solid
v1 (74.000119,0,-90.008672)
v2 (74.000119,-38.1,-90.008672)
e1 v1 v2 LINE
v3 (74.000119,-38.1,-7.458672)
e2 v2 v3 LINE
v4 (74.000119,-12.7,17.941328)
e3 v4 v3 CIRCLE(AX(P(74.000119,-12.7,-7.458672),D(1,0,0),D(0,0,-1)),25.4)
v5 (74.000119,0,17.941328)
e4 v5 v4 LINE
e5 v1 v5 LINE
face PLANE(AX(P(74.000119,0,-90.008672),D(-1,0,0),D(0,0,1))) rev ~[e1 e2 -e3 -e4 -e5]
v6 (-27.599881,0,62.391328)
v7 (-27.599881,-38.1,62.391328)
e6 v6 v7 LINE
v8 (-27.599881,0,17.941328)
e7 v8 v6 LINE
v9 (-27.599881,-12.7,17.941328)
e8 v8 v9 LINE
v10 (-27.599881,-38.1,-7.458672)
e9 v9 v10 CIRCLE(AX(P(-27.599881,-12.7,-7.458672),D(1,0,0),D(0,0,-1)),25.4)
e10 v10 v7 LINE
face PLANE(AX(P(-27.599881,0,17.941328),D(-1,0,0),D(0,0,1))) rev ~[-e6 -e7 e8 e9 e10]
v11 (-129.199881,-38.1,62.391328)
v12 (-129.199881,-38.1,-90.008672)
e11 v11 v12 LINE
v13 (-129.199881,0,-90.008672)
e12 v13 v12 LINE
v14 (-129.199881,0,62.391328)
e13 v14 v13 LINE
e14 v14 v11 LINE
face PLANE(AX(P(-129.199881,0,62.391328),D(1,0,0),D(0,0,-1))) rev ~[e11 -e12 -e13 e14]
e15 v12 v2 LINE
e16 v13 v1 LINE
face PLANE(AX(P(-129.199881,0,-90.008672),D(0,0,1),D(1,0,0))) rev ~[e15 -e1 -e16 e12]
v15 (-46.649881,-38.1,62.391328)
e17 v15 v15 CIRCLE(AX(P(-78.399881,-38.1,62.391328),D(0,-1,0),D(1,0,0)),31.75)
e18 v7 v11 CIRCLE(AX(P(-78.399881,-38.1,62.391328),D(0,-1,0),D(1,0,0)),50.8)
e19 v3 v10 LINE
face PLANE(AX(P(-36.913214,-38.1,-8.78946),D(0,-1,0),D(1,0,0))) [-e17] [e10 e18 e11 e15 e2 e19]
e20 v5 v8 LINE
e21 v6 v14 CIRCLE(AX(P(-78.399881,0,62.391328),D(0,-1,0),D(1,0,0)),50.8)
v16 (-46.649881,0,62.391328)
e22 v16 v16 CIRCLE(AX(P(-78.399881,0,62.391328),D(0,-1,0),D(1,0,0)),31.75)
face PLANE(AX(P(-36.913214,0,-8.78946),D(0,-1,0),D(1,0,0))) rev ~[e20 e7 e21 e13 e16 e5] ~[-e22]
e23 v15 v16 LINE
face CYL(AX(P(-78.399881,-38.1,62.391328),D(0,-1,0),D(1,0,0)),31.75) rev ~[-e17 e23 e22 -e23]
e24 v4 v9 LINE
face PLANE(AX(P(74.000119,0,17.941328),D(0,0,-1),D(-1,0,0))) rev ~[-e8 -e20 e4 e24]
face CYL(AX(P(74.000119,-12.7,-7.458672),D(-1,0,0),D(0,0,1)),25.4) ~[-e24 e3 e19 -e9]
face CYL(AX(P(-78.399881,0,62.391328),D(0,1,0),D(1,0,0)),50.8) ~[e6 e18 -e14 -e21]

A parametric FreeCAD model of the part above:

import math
import FreeCAD as App
import Part
import Sketcher
from FreeCAD import Vector
Q = App.Units.Quantity


def edges_at(feature, points):
    """Names of the edges that pass closest to the given points."""
    edges = feature.Shape.Edges
    near = lambda p: min(range(len(edges)), key=lambda i: edges[i].distToShape(Part.Vertex(*p))[0])
    return sorted({f"Edge{near(p) + 1}" for p in points})

doc = App.newDocument("Part")
body = doc.addObject("PartDesign::Body", "Body")

# Sketch on XZ plane
sketch1 = body.newObject("Sketcher::SketchObject", "Sketch")
sketch1.AttachmentSupport = (doc.getObject("XZ_Plane"), [""])
sketch1.MapMode = "FlatFace"
sketch1.addGeometry([
    Part.ArcOfCircle(Part.Circle(Vector(-78, 62, 0), Vector(0, 0, 1), 51), math.radians(0), math.radians(180)),  # 0
    Part.LineSegment(Vector(-129, 62, 0), Vector(-129, -90, 0)),  # 1
    Part.LineSegment(Vector(-129, -90, 0), Vector(74, -90, 0)),  # 2
    Part.LineSegment(Vector(74, -90, 0), Vector(74, 18, 0)),  # 3
    Part.LineSegment(Vector(74, 18, 0), Vector(-28, 18, 0)),  # 4
    Part.LineSegment(Vector(-28, 18, 0), Vector(-28, 62, 0)),  # 5
], False)
sketch1.addConstraint([
    Sketcher.Constraint("Tangent", 0, 2, 1, 1),
    Sketcher.Constraint("Coincident", 1, 2, 2, 1),
    Sketcher.Constraint("Coincident", 2, 2, 3, 1),
    Sketcher.Constraint("Coincident", 3, 2, 4, 1),
    Sketcher.Constraint("Coincident", 4, 2, 5, 1),
    Sketcher.Constraint("Tangent", 5, 2, 0, 1),
    Sketcher.Constraint("Vertical", 1),
    Sketcher.Constraint("Horizontal", 2),
    Sketcher.Constraint("Vertical", 3),
    Sketcher.Constraint("Horizontal", 4),
    Sketcher.Constraint("Vertical", 5),
    Sketcher.Constraint("Radius", 0, Q("2 in")),
    Sketcher.Constraint("DistanceX", 2, 1, 2, 2, Q("8 in")),
    Sketcher.Constraint("DistanceY", 1, 2, 1, 1, Q("6 in")),
    Sketcher.Constraint("DistanceY", 3, 1, 3, 2, Q("4.25 in")),
    Sketcher.Constraint("DistanceX", 0, 3, -1, 1, Q("78.399881 mm")),
    Sketcher.Constraint("DistanceY", -1, 1, 0, 2, Q("62.391328 mm")),
])
pad1 = body.newObject("PartDesign::Pad", "Pad")
pad1.Profile = sketch1
pad1.Length = Q("1.5 in")
doc.recompute()

fillet = body.newObject("PartDesign::Fillet", "Fillet")
fillet.Base = (pad1, edges_at(pad1, [(23.2, -38.1, 17.941)]))
fillet.Radius = Q("1 in")

# Sketch on XZ plane
sketch2 = body.newObject("Sketcher::SketchObject", "Sketch001")
sketch2.AttachmentSupport = (doc.getObject("XZ_Plane"), [""])
sketch2.MapMode = "FlatFace"
sketch2.AttachmentOffset = App.Placement(Vector(0, 0, 1.5 * 25.4), App.Rotation())
sketch2.addGeometry(Part.Circle(Vector(-78, 62, 0), Vector(0, 0, 1), 32), False)
sketch2.addConstraint([
    Sketcher.Constraint("Diameter", 0, Q("2.5 in")),
    Sketcher.Constraint("DistanceX", 0, 3, -1, 1, Q("78.399881 mm")),
    Sketcher.Constraint("DistanceY", -1, 1, 0, 3, Q("62.391328 mm")),
])
pocket1 = body.newObject("PartDesign::Pocket", "Pocket")
pocket1.Profile = sketch2
pocket1.Length = Q("2 in")

doc.recompute()
